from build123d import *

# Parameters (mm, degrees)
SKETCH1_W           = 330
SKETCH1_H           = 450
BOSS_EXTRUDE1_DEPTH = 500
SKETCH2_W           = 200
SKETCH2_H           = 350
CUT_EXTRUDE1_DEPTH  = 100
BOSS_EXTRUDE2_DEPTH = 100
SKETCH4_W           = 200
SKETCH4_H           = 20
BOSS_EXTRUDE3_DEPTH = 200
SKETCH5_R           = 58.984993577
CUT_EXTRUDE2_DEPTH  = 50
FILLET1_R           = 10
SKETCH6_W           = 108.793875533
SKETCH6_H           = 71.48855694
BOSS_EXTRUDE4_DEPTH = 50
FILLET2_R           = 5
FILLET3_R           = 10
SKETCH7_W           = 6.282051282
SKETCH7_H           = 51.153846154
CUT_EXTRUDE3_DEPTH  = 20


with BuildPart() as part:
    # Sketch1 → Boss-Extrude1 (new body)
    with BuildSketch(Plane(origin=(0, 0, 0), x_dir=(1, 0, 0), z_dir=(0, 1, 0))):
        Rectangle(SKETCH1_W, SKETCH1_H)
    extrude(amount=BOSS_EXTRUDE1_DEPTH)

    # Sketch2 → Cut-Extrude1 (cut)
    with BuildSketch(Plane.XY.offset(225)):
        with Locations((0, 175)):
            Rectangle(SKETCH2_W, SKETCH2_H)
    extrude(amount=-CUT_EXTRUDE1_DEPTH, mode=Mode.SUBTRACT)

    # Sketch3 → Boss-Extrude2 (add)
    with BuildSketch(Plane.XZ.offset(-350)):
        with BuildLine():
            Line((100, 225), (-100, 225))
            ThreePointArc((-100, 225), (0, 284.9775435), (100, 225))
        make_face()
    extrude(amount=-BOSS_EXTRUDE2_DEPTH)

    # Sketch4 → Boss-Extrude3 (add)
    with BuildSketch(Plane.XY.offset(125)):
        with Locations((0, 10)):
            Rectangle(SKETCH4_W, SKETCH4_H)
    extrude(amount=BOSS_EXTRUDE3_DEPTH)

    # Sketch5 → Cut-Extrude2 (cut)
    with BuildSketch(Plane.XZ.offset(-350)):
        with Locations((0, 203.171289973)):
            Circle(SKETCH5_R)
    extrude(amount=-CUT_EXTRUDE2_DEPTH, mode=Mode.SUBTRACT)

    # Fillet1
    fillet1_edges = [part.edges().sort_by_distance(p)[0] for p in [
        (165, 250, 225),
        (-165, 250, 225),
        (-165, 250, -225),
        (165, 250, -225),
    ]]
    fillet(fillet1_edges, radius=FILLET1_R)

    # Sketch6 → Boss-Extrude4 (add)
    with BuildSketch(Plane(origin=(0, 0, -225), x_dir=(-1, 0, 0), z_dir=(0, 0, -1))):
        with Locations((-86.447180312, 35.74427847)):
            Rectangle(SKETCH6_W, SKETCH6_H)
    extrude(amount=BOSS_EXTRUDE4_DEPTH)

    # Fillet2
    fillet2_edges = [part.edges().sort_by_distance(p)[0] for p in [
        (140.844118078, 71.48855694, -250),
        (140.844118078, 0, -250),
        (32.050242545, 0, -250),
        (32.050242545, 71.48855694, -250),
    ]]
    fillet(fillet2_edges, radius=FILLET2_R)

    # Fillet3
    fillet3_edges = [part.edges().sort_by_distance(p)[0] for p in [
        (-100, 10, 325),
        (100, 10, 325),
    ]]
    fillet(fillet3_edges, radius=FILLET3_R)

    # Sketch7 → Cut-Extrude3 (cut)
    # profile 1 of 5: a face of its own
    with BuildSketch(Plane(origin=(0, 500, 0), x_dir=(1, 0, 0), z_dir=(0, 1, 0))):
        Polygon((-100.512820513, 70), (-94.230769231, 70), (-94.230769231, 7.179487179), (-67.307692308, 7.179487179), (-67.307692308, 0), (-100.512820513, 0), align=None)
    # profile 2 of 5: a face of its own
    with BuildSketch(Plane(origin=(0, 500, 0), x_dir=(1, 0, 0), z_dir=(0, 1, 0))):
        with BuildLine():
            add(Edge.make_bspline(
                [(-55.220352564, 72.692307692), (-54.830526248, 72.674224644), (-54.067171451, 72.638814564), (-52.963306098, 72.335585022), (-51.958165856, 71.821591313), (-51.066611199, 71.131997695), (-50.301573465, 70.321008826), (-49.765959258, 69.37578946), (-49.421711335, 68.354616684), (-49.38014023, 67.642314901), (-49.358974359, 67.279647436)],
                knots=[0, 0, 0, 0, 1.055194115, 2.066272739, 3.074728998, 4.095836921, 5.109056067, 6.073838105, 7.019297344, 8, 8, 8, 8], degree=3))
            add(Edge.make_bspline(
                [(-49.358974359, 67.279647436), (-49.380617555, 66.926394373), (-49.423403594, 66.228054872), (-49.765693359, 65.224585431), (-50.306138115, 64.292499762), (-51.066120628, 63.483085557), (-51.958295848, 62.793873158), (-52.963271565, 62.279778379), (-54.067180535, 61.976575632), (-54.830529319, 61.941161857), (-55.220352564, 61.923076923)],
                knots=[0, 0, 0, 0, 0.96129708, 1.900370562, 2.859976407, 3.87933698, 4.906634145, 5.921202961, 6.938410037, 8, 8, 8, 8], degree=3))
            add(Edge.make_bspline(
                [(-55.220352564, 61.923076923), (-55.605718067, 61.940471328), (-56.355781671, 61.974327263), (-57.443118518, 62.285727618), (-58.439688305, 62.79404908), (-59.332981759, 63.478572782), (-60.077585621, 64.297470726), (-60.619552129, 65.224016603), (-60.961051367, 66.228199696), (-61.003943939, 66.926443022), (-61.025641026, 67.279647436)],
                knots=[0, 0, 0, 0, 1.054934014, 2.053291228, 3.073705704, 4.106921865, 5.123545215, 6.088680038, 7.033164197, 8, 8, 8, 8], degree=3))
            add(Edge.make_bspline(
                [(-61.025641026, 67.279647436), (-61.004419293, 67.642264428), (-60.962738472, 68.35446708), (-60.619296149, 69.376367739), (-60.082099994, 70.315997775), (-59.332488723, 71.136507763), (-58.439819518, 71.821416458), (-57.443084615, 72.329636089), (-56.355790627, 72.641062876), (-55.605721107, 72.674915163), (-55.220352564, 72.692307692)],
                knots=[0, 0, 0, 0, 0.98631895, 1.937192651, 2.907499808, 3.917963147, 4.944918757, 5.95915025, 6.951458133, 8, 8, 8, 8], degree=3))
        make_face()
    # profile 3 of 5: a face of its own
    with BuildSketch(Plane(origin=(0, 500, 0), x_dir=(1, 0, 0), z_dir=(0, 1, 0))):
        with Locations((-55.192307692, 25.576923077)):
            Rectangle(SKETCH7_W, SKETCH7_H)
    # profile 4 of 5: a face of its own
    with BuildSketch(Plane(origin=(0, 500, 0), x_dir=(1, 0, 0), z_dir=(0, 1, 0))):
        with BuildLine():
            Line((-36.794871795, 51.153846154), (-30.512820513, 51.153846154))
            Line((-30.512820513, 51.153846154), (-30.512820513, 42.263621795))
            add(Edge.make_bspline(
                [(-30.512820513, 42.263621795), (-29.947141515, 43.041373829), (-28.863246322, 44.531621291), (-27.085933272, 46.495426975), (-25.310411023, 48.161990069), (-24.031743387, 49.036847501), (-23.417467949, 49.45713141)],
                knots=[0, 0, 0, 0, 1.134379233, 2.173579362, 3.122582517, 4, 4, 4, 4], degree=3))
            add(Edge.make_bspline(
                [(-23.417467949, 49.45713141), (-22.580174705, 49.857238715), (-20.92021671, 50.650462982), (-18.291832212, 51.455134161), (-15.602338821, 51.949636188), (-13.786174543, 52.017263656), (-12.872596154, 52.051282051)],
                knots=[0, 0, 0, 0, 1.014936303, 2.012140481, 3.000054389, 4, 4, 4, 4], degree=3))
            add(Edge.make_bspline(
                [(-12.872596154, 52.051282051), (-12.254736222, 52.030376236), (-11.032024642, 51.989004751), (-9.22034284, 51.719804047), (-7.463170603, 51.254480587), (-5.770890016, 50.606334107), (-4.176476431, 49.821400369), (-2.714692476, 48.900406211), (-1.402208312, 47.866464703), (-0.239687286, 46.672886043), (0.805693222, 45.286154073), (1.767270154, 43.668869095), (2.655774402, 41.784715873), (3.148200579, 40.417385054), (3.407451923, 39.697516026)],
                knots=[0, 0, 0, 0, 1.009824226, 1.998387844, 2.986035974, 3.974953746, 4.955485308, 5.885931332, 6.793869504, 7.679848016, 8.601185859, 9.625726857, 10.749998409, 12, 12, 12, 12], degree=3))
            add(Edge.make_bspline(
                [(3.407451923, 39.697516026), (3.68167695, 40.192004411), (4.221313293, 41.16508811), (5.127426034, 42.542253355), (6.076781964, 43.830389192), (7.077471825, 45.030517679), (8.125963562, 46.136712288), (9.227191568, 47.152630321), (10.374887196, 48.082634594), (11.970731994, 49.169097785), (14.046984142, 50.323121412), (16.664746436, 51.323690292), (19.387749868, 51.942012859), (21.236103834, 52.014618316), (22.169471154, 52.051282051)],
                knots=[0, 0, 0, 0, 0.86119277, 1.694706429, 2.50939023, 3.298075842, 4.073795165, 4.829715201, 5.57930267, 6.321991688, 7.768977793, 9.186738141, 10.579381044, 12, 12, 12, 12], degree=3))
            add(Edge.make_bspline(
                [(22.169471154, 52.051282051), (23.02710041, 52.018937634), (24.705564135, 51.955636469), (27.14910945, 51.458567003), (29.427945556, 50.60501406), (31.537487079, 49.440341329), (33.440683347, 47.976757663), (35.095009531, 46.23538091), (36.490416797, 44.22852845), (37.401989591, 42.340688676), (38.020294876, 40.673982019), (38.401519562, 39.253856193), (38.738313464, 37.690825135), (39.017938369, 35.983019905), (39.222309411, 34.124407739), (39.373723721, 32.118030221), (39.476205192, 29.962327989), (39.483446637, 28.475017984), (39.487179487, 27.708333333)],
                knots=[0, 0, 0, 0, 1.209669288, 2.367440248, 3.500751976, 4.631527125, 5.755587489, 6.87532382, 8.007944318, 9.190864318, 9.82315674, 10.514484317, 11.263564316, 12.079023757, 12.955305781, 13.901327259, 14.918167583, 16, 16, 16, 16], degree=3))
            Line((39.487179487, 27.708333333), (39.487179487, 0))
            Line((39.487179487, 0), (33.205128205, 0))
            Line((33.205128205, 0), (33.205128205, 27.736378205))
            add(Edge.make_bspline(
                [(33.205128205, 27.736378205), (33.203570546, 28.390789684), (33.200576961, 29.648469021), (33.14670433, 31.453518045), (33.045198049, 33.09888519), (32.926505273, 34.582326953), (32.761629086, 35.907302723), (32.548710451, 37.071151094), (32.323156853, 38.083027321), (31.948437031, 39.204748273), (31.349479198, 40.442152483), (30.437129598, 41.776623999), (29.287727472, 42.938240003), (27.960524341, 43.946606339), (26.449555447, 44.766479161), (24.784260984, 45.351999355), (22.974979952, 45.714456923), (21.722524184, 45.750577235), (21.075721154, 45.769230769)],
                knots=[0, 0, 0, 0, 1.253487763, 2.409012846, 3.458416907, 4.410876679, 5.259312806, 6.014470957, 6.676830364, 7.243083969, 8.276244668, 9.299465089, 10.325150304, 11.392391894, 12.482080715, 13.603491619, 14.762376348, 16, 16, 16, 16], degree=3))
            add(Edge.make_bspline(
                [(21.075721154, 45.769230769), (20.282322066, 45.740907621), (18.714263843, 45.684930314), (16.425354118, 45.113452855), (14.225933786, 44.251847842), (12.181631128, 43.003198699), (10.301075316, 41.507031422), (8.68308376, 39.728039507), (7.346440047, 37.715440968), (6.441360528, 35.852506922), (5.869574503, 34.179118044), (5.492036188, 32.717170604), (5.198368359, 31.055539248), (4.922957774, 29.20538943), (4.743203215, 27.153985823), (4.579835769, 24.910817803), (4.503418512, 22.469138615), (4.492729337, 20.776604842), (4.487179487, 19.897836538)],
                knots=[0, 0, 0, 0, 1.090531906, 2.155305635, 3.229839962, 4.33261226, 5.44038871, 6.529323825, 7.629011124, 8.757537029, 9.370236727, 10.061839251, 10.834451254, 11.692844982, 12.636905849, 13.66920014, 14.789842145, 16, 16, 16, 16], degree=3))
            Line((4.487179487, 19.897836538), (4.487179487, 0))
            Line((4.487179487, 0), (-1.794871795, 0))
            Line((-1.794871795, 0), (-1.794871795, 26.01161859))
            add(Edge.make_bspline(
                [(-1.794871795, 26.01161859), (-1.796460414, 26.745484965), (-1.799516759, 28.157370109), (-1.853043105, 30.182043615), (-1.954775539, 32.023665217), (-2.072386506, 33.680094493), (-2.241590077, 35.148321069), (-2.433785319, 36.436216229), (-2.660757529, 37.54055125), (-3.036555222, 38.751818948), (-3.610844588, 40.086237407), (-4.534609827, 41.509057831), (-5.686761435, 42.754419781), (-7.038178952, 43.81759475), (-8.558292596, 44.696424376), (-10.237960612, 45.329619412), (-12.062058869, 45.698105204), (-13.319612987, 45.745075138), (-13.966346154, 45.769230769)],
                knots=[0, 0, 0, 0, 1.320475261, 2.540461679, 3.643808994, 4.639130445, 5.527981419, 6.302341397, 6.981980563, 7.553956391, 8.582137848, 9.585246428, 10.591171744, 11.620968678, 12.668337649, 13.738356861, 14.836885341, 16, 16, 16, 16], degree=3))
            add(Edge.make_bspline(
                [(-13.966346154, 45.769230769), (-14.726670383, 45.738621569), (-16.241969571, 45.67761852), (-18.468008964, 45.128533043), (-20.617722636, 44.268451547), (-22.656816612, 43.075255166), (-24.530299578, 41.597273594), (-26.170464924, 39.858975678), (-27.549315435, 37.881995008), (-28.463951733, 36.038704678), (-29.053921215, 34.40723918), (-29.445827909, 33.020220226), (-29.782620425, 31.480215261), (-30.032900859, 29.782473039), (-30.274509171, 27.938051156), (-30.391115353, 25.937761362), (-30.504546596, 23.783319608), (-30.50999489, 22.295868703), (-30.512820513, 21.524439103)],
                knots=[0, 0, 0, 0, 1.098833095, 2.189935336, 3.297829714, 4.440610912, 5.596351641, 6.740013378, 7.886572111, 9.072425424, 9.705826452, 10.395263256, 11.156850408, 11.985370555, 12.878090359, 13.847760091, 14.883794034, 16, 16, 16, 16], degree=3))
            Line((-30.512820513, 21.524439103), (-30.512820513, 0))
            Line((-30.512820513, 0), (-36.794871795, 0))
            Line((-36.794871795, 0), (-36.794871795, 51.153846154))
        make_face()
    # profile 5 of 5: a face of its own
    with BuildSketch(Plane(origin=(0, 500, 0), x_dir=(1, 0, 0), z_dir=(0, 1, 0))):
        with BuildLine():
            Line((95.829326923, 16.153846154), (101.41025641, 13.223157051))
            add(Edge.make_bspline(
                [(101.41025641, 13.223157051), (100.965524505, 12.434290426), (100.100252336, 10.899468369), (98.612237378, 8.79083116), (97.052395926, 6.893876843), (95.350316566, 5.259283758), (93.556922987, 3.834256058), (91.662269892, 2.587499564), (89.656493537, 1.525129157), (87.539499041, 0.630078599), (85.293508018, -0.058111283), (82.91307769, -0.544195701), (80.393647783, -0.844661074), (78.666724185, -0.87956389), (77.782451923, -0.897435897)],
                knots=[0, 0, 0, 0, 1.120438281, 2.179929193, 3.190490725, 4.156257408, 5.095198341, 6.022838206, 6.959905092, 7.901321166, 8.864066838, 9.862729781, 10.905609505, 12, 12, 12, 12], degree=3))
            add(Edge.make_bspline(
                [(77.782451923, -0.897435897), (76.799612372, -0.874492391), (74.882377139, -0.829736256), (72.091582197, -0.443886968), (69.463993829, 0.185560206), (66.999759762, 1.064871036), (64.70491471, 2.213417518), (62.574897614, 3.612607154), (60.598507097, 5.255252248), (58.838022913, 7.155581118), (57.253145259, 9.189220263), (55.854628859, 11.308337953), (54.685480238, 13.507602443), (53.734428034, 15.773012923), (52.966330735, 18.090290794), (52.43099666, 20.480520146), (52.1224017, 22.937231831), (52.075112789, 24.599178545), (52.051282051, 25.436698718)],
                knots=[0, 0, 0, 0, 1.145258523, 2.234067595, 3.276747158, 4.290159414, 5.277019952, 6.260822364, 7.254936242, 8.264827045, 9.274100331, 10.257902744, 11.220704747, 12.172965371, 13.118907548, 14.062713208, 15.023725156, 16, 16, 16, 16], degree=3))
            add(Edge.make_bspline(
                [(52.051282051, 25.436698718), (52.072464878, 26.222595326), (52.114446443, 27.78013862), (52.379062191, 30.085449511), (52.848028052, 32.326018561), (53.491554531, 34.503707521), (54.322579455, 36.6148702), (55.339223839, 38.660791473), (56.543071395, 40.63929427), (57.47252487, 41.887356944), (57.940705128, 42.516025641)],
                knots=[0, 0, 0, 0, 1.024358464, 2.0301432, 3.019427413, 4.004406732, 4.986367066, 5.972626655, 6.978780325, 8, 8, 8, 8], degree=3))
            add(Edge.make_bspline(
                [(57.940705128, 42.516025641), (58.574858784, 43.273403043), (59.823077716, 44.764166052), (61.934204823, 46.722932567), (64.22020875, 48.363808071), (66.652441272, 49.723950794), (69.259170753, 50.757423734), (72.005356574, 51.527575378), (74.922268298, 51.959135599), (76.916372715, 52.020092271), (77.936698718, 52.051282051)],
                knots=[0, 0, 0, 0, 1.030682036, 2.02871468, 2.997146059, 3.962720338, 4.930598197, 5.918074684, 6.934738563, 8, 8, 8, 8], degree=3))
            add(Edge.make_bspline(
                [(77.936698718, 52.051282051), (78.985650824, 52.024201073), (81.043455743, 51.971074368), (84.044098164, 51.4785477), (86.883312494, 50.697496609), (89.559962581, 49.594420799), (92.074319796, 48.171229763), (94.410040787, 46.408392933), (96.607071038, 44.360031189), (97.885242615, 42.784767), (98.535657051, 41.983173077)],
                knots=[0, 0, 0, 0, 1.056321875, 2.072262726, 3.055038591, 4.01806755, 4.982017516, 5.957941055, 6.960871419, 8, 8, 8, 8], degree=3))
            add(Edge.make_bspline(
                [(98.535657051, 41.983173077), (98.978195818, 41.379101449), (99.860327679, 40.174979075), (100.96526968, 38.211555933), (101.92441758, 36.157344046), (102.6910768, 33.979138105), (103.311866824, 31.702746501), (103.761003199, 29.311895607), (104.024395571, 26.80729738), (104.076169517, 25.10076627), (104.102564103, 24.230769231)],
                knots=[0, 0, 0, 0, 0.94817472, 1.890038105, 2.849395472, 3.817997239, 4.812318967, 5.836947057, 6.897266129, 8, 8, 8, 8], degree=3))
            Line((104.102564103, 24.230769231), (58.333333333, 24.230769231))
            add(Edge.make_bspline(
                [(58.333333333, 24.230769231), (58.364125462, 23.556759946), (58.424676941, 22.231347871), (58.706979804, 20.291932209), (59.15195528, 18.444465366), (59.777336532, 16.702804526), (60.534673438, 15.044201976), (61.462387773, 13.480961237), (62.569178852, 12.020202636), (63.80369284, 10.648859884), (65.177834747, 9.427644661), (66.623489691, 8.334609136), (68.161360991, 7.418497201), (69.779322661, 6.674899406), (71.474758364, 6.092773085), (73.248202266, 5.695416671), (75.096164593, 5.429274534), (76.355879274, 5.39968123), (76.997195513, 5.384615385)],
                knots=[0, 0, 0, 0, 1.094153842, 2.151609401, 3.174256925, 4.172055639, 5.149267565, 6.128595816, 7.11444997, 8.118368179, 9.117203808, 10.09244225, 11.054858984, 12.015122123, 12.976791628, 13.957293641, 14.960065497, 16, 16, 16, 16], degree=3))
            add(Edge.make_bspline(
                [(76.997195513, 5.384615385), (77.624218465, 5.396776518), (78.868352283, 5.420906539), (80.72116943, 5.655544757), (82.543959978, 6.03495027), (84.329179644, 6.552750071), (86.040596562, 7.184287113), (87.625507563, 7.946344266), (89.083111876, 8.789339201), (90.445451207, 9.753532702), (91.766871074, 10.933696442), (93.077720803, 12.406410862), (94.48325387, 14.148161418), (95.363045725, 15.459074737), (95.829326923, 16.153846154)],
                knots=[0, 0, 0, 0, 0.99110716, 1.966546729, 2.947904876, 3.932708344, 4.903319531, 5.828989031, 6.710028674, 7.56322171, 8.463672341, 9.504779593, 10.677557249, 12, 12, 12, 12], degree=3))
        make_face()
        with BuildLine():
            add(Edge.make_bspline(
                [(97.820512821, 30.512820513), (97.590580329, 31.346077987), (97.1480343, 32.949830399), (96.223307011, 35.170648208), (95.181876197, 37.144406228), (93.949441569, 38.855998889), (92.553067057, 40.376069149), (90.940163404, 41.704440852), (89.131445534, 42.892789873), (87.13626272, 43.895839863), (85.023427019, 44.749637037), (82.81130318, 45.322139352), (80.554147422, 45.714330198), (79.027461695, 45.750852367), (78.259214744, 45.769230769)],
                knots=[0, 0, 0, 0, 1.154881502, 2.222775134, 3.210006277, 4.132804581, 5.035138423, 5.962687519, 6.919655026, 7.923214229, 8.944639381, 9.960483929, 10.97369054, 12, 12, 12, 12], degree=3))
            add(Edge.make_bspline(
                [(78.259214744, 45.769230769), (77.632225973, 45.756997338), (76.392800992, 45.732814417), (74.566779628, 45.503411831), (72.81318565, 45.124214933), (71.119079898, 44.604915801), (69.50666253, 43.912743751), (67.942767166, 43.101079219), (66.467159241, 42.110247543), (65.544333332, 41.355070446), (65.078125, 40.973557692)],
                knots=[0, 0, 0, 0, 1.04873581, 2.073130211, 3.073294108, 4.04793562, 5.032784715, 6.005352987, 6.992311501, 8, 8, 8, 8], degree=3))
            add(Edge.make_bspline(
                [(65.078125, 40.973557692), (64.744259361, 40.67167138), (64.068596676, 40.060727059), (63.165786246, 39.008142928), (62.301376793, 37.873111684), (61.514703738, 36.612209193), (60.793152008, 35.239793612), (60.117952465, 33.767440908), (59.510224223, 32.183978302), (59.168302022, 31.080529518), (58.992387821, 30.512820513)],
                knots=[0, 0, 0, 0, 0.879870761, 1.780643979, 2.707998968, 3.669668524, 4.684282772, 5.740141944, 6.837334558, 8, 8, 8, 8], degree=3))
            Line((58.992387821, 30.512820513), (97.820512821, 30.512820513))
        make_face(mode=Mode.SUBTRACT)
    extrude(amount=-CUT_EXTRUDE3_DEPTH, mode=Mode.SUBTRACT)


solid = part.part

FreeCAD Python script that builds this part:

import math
import FreeCAD as App
import Part
import Sketcher
Q = App.Units.Quantity


def edges_at(feature, points):
    """Names of the edges that pass closest to the given points."""
    edges = feature.Shape.Edges
    near = lambda p: min(range(len(edges)), key=lambda i: edges[i].distToShape(Part.Vertex(*p))[0])
    return sorted({f"Edge{near(p) + 1}" for p in points})

doc = App.newDocument("Part")
body = doc.addObject("PartDesign::Body", "Body")

# Sketch on XZ plane
sketch1 = body.newObject("Sketcher::SketchObject", "Sketch")
sketch1.AttachmentSupport = (doc.getObject("XZ_Plane"), [""])
sketch1.MapMode = "FlatFace"
sketch1.addGeometry(Part.LineSegment(App.Vector(-165, -225, 0), App.Vector(-165, 225, 0)), False)
sketch1.addGeometry(Part.LineSegment(App.Vector(-165, 225, 0), App.Vector(165, 225, 0)), False)
sketch1.addGeometry(Part.LineSegment(App.Vector(165, 225, 0), App.Vector(165, -225, 0)), False)
sketch1.addGeometry(Part.LineSegment(App.Vector(165, -225, 0), App.Vector(-165, -225, 0)), False)
sketch1.addConstraint(Sketcher.Constraint("Coincident", 0, 2, 1, 1))
sketch1.addConstraint(Sketcher.Constraint("Coincident", 1, 2, 2, 1))
sketch1.addConstraint(Sketcher.Constraint("Coincident", 2, 2, 3, 1))
sketch1.addConstraint(Sketcher.Constraint("Coincident", 3, 2, 0, 1))
sketch1.addConstraint(Sketcher.Constraint("Vertical", 0))
sketch1.addConstraint(Sketcher.Constraint("Horizontal", 1))
sketch1.addConstraint(Sketcher.Constraint("Vertical", 2))
sketch1.addConstraint(Sketcher.Constraint("Horizontal", 3))
sketch1.addConstraint(Sketcher.Constraint("Symmetric", 0, 2, 2, 2, -1, 1))
sketch1.addConstraint(Sketcher.Constraint("DistanceX", 1, 1, 1, 2, Q("330 mm")))
sketch1.addConstraint(Sketcher.Constraint("DistanceY", 0, 1, 0, 2, Q("450 mm")))
pad1 = body.newObject("PartDesign::Pad", "Pad")
pad1.Profile = sketch1
pad1.Length = 500
pad1.Reversed = True

# Sketch on XY plane
sketch2 = body.newObject("Sketcher::SketchObject", "Sketch001")
sketch2.AttachmentSupport = (doc.getObject("XY_Plane"), [""])
sketch2.MapMode = "FlatFace"
sketch2.AttachmentOffset = App.Placement(App.Vector(0, 0, 225), App.Rotation())
sketch2.addGeometry(Part.LineSegment(App.Vector(-100, 350, 0), App.Vector(-100, 0, 0)), False)
sketch2.addGeometry(Part.LineSegment(App.Vector(-100, 0, 0), App.Vector(100, 0, 0)), False)
sketch2.addGeometry(Part.LineSegment(App.Vector(100, 0, 0), App.Vector(100, 350, 0)), False)
sketch2.addGeometry(Part.LineSegment(App.Vector(100, 350, 0), App.Vector(-100, 350, 0)), False)
sketch2.addConstraint(Sketcher.Constraint("Coincident", 0, 2, 1, 1))
sketch2.addConstraint(Sketcher.Constraint("Coincident", 1, 2, 2, 1))
sketch2.addConstraint(Sketcher.Constraint("Coincident", 2, 2, 3, 1))
sketch2.addConstraint(Sketcher.Constraint("Coincident", 3, 2, 0, 1))
sketch2.addConstraint(Sketcher.Constraint("Vertical", 0))
sketch2.addConstraint(Sketcher.Constraint("Horizontal", 1))
sketch2.addConstraint(Sketcher.Constraint("Vertical", 2))
sketch2.addConstraint(Sketcher.Constraint("Horizontal", 3))
sketch2.addConstraint(Sketcher.Constraint("Symmetric", 0, 2, 1, 2, -1, 1))
sketch2.addConstraint(Sketcher.Constraint("DistanceX", 1, 1, 1, 2, Q("200 mm")))
sketch2.addConstraint(Sketcher.Constraint("DistanceY", 0, 2, 0, 1, Q("350 mm")))
pocket1 = body.newObject("PartDesign::Pocket", "Pocket")
pocket1.Profile = sketch2
pocket1.Length = 100

# Sketch on XZ plane
sketch3 = body.newObject("Sketcher::SketchObject", "Sketch002")
sketch3.AttachmentSupport = (doc.getObject("XZ_Plane"), [""])
sketch3.MapMode = "FlatFace"
sketch3.AttachmentOffset = App.Placement(App.Vector(0, 0, -350), App.Rotation())
sketch3.addGeometry(Part.LineSegment(App.Vector(-100, 225, 0), App.Vector(100, 225, 0)), False)
sketch3.addGeometry(Part.ArcOfCircle(Part.Circle(App.Vector(0, 172, 0), App.Vector(0, 0, 1), 113), math.radians(28), math.radians(152)), False)
sketch3.addConstraint(Sketcher.Constraint("Coincident", 0, 1, 1, 2))
sketch3.addConstraint(Sketcher.Constraint("Coincident", 1, 1, 0, 2))
sketch3.addConstraint(Sketcher.Constraint("Horizontal", 0))
sketch3.addConstraint(Sketcher.Constraint("PointOnObject", 1, 3, -2))
sketch3.addConstraint(Sketcher.Constraint("DistanceX", 0, 1, 0, 2, Q("200 mm")))
sketch3.addConstraint(Sketcher.Constraint("DistanceY", -1, 1, 0, 1, Q("225 mm")))
sketch3.addConstraint(Sketcher.Constraint("Radius", 1, Q("113.353306 mm")))
pad2 = body.newObject("PartDesign::Pad", "Pad001")
pad2.Profile = sketch3
pad2.Length = 100
pad2.Reversed = True

# Sketch on XY plane
sketch4 = body.newObject("Sketcher::SketchObject", "Sketch003")
sketch4.AttachmentSupport = (doc.getObject("XY_Plane"), [""])
sketch4.MapMode = "FlatFace"
sketch4.AttachmentOffset = App.Placement(App.Vector(0, 0, 125), App.Rotation())
sketch4.addGeometry(Part.LineSegment(App.Vector(-100, 20, 0), App.Vector(-100, 0, 0)), False)
sketch4.addGeometry(Part.LineSegment(App.Vector(-100, 0, 0), App.Vector(100, 0, 0)), False)
sketch4.addGeometry(Part.LineSegment(App.Vector(100, 0, 0), App.Vector(100, 20, 0)), False)
sketch4.addGeometry(Part.LineSegment(App.Vector(100, 20, 0), App.Vector(-100, 20, 0)), False)
sketch4.addConstraint(Sketcher.Constraint("Coincident", 0, 2, 1, 1))
sketch4.addConstraint(Sketcher.Constraint("Coincident", 1, 2, 2, 1))
sketch4.addConstraint(Sketcher.Constraint("Coincident", 2, 2, 3, 1))
sketch4.addConstraint(Sketcher.Constraint("Coincident", 3, 2, 0, 1))
sketch4.addConstraint(Sketcher.Constraint("Vertical", 0))
sketch4.addConstraint(Sketcher.Constraint("Horizontal", 1))
sketch4.addConstraint(Sketcher.Constraint("Vertical", 2))
sketch4.addConstraint(Sketcher.Constraint("Horizontal", 3))
sketch4.addConstraint(Sketcher.Constraint("Symmetric", 0, 2, 1, 2, -1, 1))
sketch4.addConstraint(Sketcher.Constraint("DistanceX", 1, 1, 1, 2, Q("200 mm")))
sketch4.addConstraint(Sketcher.Constraint("DistanceY", 0, 2, 0, 1, Q("20 mm")))
pad3 = body.newObject("PartDesign::Pad", "Pad002")
pad3.Profile = sketch4
pad3.Length = 200

# Sketch on XZ plane
sketch5 = body.newObject("Sketcher::SketchObject", "Sketch004")
sketch5.AttachmentSupport = (doc.getObject("XZ_Plane"), [""])
sketch5.MapMode = "FlatFace"
sketch5.AttachmentOffset = App.Placement(App.Vector(0, 0, -350), App.Rotation())
sketch5.addGeometry(Part.Circle(App.Vector(0, 203, 0), App.Vector(0, 0, 1), 59), False)
sketch5.addConstraint(Sketcher.Constraint("PointOnObject", 0, 3, -2))
sketch5.addConstraint(Sketcher.Constraint("Diameter", 0, Q("117.969987 mm")))
sketch5.addConstraint(Sketcher.Constraint("DistanceY", -1, 1, 0, 3, Q("203.17129 mm")))
pocket2 = body.newObject("PartDesign::Pocket", "Pocket001")
pocket2.Profile = sketch5
pocket2.Length = 50
doc.recompute()

fillet = body.newObject("PartDesign::Fillet", "Fillet")
fillet.Base = (pocket2, edges_at(pocket2, [
    (165, 250, 225),
    (-165, 250, 225),
    (-165, 250, -225),
    (165, 250, -225),
]))
fillet.Radius = 10

# Sketch on XY plane
sketch6 = body.newObject("Sketcher::SketchObject", "Sketch005")
sketch6.AttachmentSupport = (doc.getObject("XY_Plane"), [""])
sketch6.MapMode = "FlatFace"
sketch6.AttachmentOffset = App.Placement(App.Vector(0, 0, -225), App.Rotation())
sketch6.addGeometry(Part.LineSegment(App.Vector(141, 71, 0), App.Vector(141, 0, 0)), False)
sketch6.addGeometry(Part.LineSegment(App.Vector(141, 0, 0), App.Vector(32, 0, 0)), False)
sketch6.addGeometry(Part.LineSegment(App.Vector(32, 0, 0), App.Vector(32, 71, 0)), False)
sketch6.addGeometry(Part.LineSegment(App.Vector(32, 71, 0), App.Vector(141, 71, 0)), False)
sketch6.addConstraint(Sketcher.Constraint("Coincident", 0, 2, 1, 1))
sketch6.addConstraint(Sketcher.Constraint("Coincident", 1, 2, 2, 1))
sketch6.addConstraint(Sketcher.Constraint("Coincident", 2, 2, 3, 1))
sketch6.addConstraint(Sketcher.Constraint("Coincident", 3, 2, 0, 1))
sketch6.addConstraint(Sketcher.Constraint("Vertical", 0))
sketch6.addConstraint(Sketcher.Constraint("Horizontal", 1))
sketch6.addConstraint(Sketcher.Constraint("Vertical", 2))
sketch6.addConstraint(Sketcher.Constraint("Horizontal", 3))
sketch6.addConstraint(Sketcher.Constraint("PointOnObject", 0, 2, -1))
sketch6.addConstraint(Sketcher.Constraint("DistanceX", 1, 2, 1, 1, Q("108.793876 mm")))
sketch6.addConstraint(Sketcher.Constraint("DistanceY", 0, 2, 0, 1, Q("71.488557 mm")))
sketch6.addConstraint(Sketcher.Constraint("DistanceX", -1, 1, 0, 2, Q("140.844118 mm")))
pad4 = body.newObject("PartDesign::Pad", "Pad003")
pad4.Profile = sketch6
pad4.Length = 50
pad4.Reversed = True
doc.recompute()

fillet2 = body.newObject("PartDesign::Fillet", "Fillet001")
fillet2.Base = (pad4, edges_at(pad4, [
    (140.844, 71.489, -250),
    (140.844, 0, -250),
    (32.05, 0, -250),
    (32.05, 71.489, -250),
]))
fillet2.Radius = 5
doc.recompute()

fillet3 = body.newObject("PartDesign::Fillet", "Fillet002")
fillet3.Base = (fillet2, edges_at(fillet2, [(-100, 10, 325), (100, 10, 325)]))
fillet3.Radius = 10

# Sketch on XZ plane
sketch7 = body.newObject("Sketcher::SketchObject", "Sketch006")
sketch7.AttachmentSupport = (doc.getObject("XZ_Plane"), [""])
sketch7.MapMode = "FlatFace"
sketch7.AttachmentOffset = App.Placement(App.Vector(0, 0, -500), App.Rotation())
sketch7.addGeometry(Part.LineSegment(App.Vector(-94.230769, -70, 0), App.Vector(-100.512821, -70, 0)), False)
sketch7.addGeometry(Part.LineSegment(App.Vector(-100.512821, -70, 0), App.Vector(-100.512821, 0, 0)), False)
sketch7.addGeometry(Part.LineSegment(App.Vector(-100.512821, 0, 0), App.Vector(-67.307692, 0, 0)), False)
sketch7.addGeometry(Part.LineSegment(App.Vector(-67.307692, 0, 0), App.Vector(-67.307692, -7.179487, 0)), False)
sketch7.addGeometry(Part.LineSegment(App.Vector(-67.307692, -7.179487, 0), App.Vector(-94.230769, -7.179487, 0)), False)
sketch7.addGeometry(Part.LineSegment(App.Vector(-94.230769, -7.179487, 0), App.Vector(-94.230769, -70, 0)), False)
sketch7.addGeometry(Part.BSplineCurve([App.Vector(-55.220353, -72.692308, 0), App.Vector(-54.830526, -72.674225, 0), App.Vector(-54.067171, -72.638815, 0), App.Vector(-52.963306, -72.335585, 0), App.Vector(-51.958166, -71.821591, 0), App.Vector(-51.066611, -71.131998, 0), App.Vector(-50.301573, -70.321009, 0), App.Vector(-49.765959, -69.375789, 0), App.Vector(-49.421711, -68.354617, 0), App.Vector(-49.38014, -67.642315, 0), App.Vector(-49.358974, -67.279647, 0)], [4, 1, 1, 1, 1, 1, 1, 1, 4], [0, 1.055194115, 2.066272739, 3.074728998, 4.095836921, 5.109056067, 6.073838105, 7.019297344, 8], False, 3, [1, 1, 1, 1, 1, 1, 1, 1, 1, 1, 1], False), False)
sketch7.addGeometry(Part.BSplineCurve([App.Vector(-61.025641, -67.279647, 0), App.Vector(-61.004419, -67.642264, 0), App.Vector(-60.962738, -68.354467, 0), App.Vector(-60.619296, -69.376368, 0), App.Vector(-60.0821, -70.315998, 0), App.Vector(-59.332489, -71.136508, 0), App.Vector(-58.43982, -71.821416, 0), App.Vector(-57.443085, -72.329636, 0), App.Vector(-56.355791, -72.641063, 0), App.Vector(-55.605721, -72.674915, 0), App.Vector(-55.220353, -72.692308, 0)], [4, 1, 1, 1, 1, 1, 1, 1, 4], [0, 0.98631895, 1.937192651, 2.907499808, 3.917963147, 4.944918757, 5.95915025, 6.951458133, 8], False, 3, [1, 1, 1, 1, 1, 1, 1, 1, 1, 1, 1], False), False)
sketch7.addGeometry(Part.BSplineCurve([App.Vector(-55.220353, -61.923077, 0), App.Vector(-55.605718, -61.940471, 0), App.Vector(-56.355782, -61.974327, 0), App.Vector(-57.443119, -62.285728, 0), App.Vector(-58.439688, -62.794049, 0), App.Vector(-59.332982, -63.478573, 0), App.Vector(-60.077586, -64.297471, 0), App.Vector(-60.619552, -65.224017, 0), App.Vector(-60.961051, -66.2282, 0), App.Vector(-61.003944, -66.926443, 0), App.Vector(-61.025641, -67.279647, 0)], [4, 1, 1, 1, 1, 1, 1, 1, 4], [0, 1.054934014, 2.053291228, 3.073705704, 4.106921865, 5.123545215, 6.088680038, 7.033164197, 8], False, 3, [1, 1, 1, 1, 1, 1, 1, 1, 1, 1, 1], False), False)
sketch7.addGeometry(Part.BSplineCurve([App.Vector(-49.358974, -67.279647, 0), App.Vector(-49.380618, -66.926394, 0), App.Vector(-49.423404, -66.228055, 0), App.Vector(-49.765693, -65.224585, 0), App.Vector(-50.306138, -64.2925, 0), App.Vector(-51.066121, -63.483086, 0), App.Vector(-51.958296, -62.793873, 0), App.Vector(-52.963272, -62.279778, 0), App.Vector(-54.067181, -61.976576, 0), App.Vector(-54.830529, -61.941162, 0), App.Vector(-55.220353, -61.923077, 0)], [4, 1, 1, 1, 1, 1, 1, 1, 4], [0, 0.96129708, 1.900370562, 2.859976407, 3.87933698, 4.906634145, 5.921202961, 6.938410037, 8], False, 3, [1, 1, 1, 1, 1, 1, 1, 1, 1, 1, 1], False), False)
sketch7.addGeometry(Part.LineSegment(App.Vector(-58.333333, -51.153846, 0), App.Vector(-58.333333, 0, 0)), False)
sketch7.addGeometry(Part.LineSegment(App.Vector(-58.333333, 0, 0), App.Vector(-52.051282, 0, 0)), False)
sketch7.addGeometry(Part.LineSegment(App.Vector(-52.051282, 0, 0), App.Vector(-52.051282, -51.153846, 0)), False)
sketch7.addGeometry(Part.LineSegment(App.Vector(-52.051282, -51.153846, 0), App.Vector(-58.333333, -51.153846, 0)), False)
sketch7.addGeometry(Part.LineSegment(App.Vector(-30.512821, -51.153846, 0), App.Vector(-36.794872, -51.153846, 0)), False)
sketch7.addGeometry(Part.LineSegment(App.Vector(-36.794872, -51.153846, 0), App.Vector(-36.794872, 0, 0)), False)
sketch7.addGeometry(Part.LineSegment(App.Vector(-36.794872, 0, 0), App.Vector(-30.512821, 0, 0)), False)
sketch7.addGeometry(Part.LineSegment(App.Vector(-30.512821, 0, 0), App.Vector(-30.512821, -21.524439, 0)), False)
sketch7.addGeometry(Part.BSplineCurve([App.Vector(-13.966346, -45.769231, 0), App.Vector(-14.72667, -45.738622, 0), App.Vector(-16.24197, -45.677619, 0), App.Vector(-18.468009, -45.128533, 0), App.Vector(-20.617723, -44.268452, 0), App.Vector(-22.656817, -43.075255, 0), App.Vector(-24.5303, -41.597274, 0), App.Vector(-26.170465, -39.858976, 0), App.Vector(-27.549315, -37.881995, 0), App.Vector(-28.463952, -36.038705, 0), App.Vector(-29.053921, -34.407239, 0), App.Vector(-29.445828, -33.02022, 0), App.Vector(-29.78262, -31.480215, 0), App.Vector(-30.032901, -29.782473, 0), App.Vector(-30.274509, -27.938051, 0), App.Vector(-30.391115, -25.937761, 0), App.Vector(-30.504547, -23.78332, 0), App.Vector(-30.509995, -22.295869, 0), App.Vector(-30.512821, -21.524439, 0)], [4, 1, 1, 1, 1, 1, 1, 1, 1, 1, 1, 1, 1, 1, 1, 1, 4], [0, 1.098833095, 2.189935336, 3.297829714, 4.440610912, 5.596351641, 6.740013378, 7.886572111, 9.072425424, 9.705826452, 10.395263256, 11.156850408, 11.985370555, 12.878090359, 13.847760091, 14.883794034, 16], False, 3, [1, 1, 1, 1, 1, 1, 1, 1, 1, 1, 1, 1, 1, 1, 1, 1, 1, 1, 1], False), False)
sketch7.addGeometry(Part.BSplineCurve([App.Vector(-1.794872, -26.011619, 0), App.Vector(-1.79646, -26.745485, 0), App.Vector(-1.799517, -28.15737, 0), App.Vector(-1.853043, -30.182044, 0), App.Vector(-1.954776, -32.023665, 0), App.Vector(-2.072387, -33.680094, 0), App.Vector(-2.24159, -35.148321, 0), App.Vector(-2.433785, -36.436216, 0), App.Vector(-2.660758, -37.540551, 0), App.Vector(-3.036555, -38.751819, 0), App.Vector(-3.610845, -40.086237, 0), App.Vector(-4.53461, -41.509058, 0), App.Vector(-5.686761, -42.75442, 0), App.Vector(-7.038179, -43.817595, 0), App.Vector(-8.558293, -44.696424, 0), App.Vector(-10.237961, -45.329619, 0), App.Vector(-12.062059, -45.698105, 0), App.Vector(-13.319613, -45.745075, 0), App.Vector(-13.966346, -45.769231, 0)], [4, 1, 1, 1, 1, 1, 1, 1, 1, 1, 1, 1, 1, 1, 1, 1, 4], [0, 1.320475261, 2.540461679, 3.643808994, 4.639130445, 5.527981419, 6.302341397, 6.981980563, 7.553956391, 8.582137848, 9.585246428, 10.591171744, 11.620968678, 12.668337649, 13.738356861, 14.836885341, 16], False, 3, [1, 1, 1, 1, 1, 1, 1, 1, 1, 1, 1, 1, 1, 1, 1, 1, 1, 1, 1], False), False)
sketch7.addGeometry(Part.LineSegment(App.Vector(-1.794872, -26.011619, 0), App.Vector(-1.794872, 0, 0)), False)
sketch7.addGeometry(Part.LineSegment(App.Vector(-1.794872, 0, 0), App.Vector(4.487179, 0, 0)), False)
sketch7.addGeometry(Part.LineSegment(App.Vector(4.487179, 0, 0), App.Vector(4.487179, -19.897837, 0)), False)
sketch7.addGeometry(Part.BSplineCurve([App.Vector(21.075721, -45.769231, 0), App.Vector(20.282322, -45.740908, 0), App.Vector(18.714264, -45.68493, 0), App.Vector(16.425354, -45.113453, 0), App.Vector(14.225934, -44.251848, 0), App.Vector(12.181631, -43.003199, 0), App.Vector(10.301075, -41.507031, 0), App.Vector(8.683084, -39.72804, 0), App.Vector(7.34644, -37.715441, 0), App.Vector(6.441361, -35.852507, 0), App.Vector(5.869575, -34.179118, 0), App.Vector(5.492036, -32.717171, 0), App.Vector(5.198368, -31.055539, 0), App.Vector(4.922958, -29.205389, 0), App.Vector(4.743203, -27.153986, 0), App.Vector(4.579836, -24.910818, 0), App.Vector(4.503419, -22.469139, 0), App.Vector(4.492729, -20.776605, 0), App.Vector(4.487179, -19.897837, 0)], [4, 1, 1, 1, 1, 1, 1, 1, 1, 1, 1, 1, 1, 1, 1, 1, 4], [0, 1.090531906, 2.155305635, 3.229839962, 4.33261226, 5.44038871, 6.529323825, 7.629011124, 8.757537029, 9.370236727, 10.061839251, 10.834451254, 11.692844982, 12.636905849, 13.66920014, 14.789842145, 16], False, 3, [1, 1, 1, 1, 1, 1, 1, 1, 1, 1, 1, 1, 1, 1, 1, 1, 1, 1, 1], False), False)
sketch7.addGeometry(Part.BSplineCurve([App.Vector(33.205128, -27.736378, 0), App.Vector(33.203571, -28.39079, 0), App.Vector(33.200577, -29.648469, 0), App.Vector(33.146704, -31.453518, 0), App.Vector(33.045198, -33.098885, 0), App.Vector(32.926505, -34.582327, 0), App.Vector(32.761629, -35.907303, 0), App.Vector(32.54871, -37.071151, 0), App.Vector(32.323157, -38.083027, 0), App.Vector(31.948437, -39.204748, 0), App.Vector(31.349479, -40.442152, 0), App.Vector(30.43713, -41.776624, 0), App.Vector(29.287727, -42.93824, 0), App.Vector(27.960524, -43.946606, 0), App.Vector(26.449555, -44.766479, 0), App.Vector(24.784261, -45.351999, 0), App.Vector(22.97498, -45.714457, 0), App.Vector(21.722524, -45.750577, 0), App.Vector(21.075721, -45.769231, 0)], [4, 1, 1, 1, 1, 1, 1, 1, 1, 1, 1, 1, 1, 1, 1, 1, 4], [0, 1.253487763, 2.409012846, 3.458416907, 4.410876679, 5.259312806, 6.014470957, 6.676830364, 7.243083969, 8.276244668, 9.299465089, 10.325150304, 11.392391894, 12.482080715, 13.603491619, 14.762376348, 16], False, 3, [1, 1, 1, 1, 1, 1, 1, 1, 1, 1, 1, 1, 1, 1, 1, 1, 1, 1, 1], False), False)
sketch7.addGeometry(Part.LineSegment(App.Vector(33.205128, -27.736378, 0), App.Vector(33.205128, 0, 0)), False)
sketch7.addGeometry(Part.LineSegment(App.Vector(33.205128, 0, 0), App.Vector(39.487179, 0, 0)), False)
sketch7.addGeometry(Part.LineSegment(App.Vector(39.487179, 0, 0), App.Vector(39.487179, -27.708333, 0)), False)
sketch7.addGeometry(Part.BSplineCurve([App.Vector(22.169471, -52.051282, 0), App.Vector(23.0271, -52.018938, 0), App.Vector(24.705564, -51.955636, 0), App.Vector(27.149109, -51.458567, 0), App.Vector(29.427946, -50.605014, 0), App.Vector(31.537487, -49.440341, 0), App.Vector(33.440683, -47.976758, 0), App.Vector(35.09501, -46.235381, 0), App.Vector(36.490417, -44.228528, 0), App.Vector(37.40199, -42.340689, 0), App.Vector(38.020295, -40.673982, 0), App.Vector(38.40152, -39.253856, 0), App.Vector(38.738313, -37.690825, 0), App.Vector(39.017938, -35.98302, 0), App.Vector(39.222309, -34.124408, 0), App.Vector(39.373724, -32.11803, 0), App.Vector(39.476205, -29.962328, 0), App.Vector(39.483447, -28.475018, 0), App.Vector(39.487179, -27.708333, 0)], [4, 1, 1, 1, 1, 1, 1, 1, 1, 1, 1, 1, 1, 1, 1, 1, 4], [0, 1.209669288, 2.367440248, 3.500751976, 4.631527125, 5.755587489, 6.87532382, 8.007944318, 9.190864318, 9.82315674, 10.514484317, 11.263564316, 12.079023757, 12.955305781, 13.901327259, 14.918167583, 16], False, 3, [1, 1, 1, 1, 1, 1, 1, 1, 1, 1, 1, 1, 1, 1, 1, 1, 1, 1, 1], False), False)
sketch7.addGeometry(Part.BSplineCurve([App.Vector(3.407452, -39.697516, 0), App.Vector(3.681677, -40.192004, 0), App.Vector(4.221313, -41.165088, 0), App.Vector(5.127426, -42.542253, 0), App.Vector(6.076782, -43.830389, 0), App.Vector(7.077472, -45.030518, 0), App.Vector(8.125964, -46.136712, 0), App.Vector(9.227192, -47.15263, 0), App.Vector(10.374887, -48.082635, 0), App.Vector(11.970732, -49.169098, 0), App.Vector(14.046984, -50.323121, 0), App.Vector(16.664746, -51.32369, 0), App.Vector(19.38775, -51.942013, 0), App.Vector(21.236104, -52.014618, 0), App.Vector(22.169471, -52.051282, 0)], [4, 1, 1, 1, 1, 1, 1, 1, 1, 1, 1, 1, 4], [0, 0.86119277, 1.694706429, 2.50939023, 3.298075842, 4.073795165, 4.829715201, 5.57930267, 6.321991688, 7.768977793, 9.186738141, 10.579381044, 12], False, 3, [1, 1, 1, 1, 1, 1, 1, 1, 1, 1, 1, 1, 1, 1, 1], False), False)
sketch7.addGeometry(Part.BSplineCurve([App.Vector(-12.872596, -52.051282, 0), App.Vector(-12.254736, -52.030376, 0), App.Vector(-11.032025, -51.989005, 0), App.Vector(-9.220343, -51.719804, 0), App.Vector(-7.463171, -51.254481, 0), App.Vector(-5.77089, -50.606334, 0), App.Vector(-4.176476, -49.8214, 0), App.Vector(-2.714692, -48.900406, 0), App.Vector(-1.402208, -47.866465, 0), App.Vector(-0.239687, -46.672886, 0), App.Vector(0.805693, -45.286154, 0), App.Vector(1.76727, -43.668869, 0), App.Vector(2.655774, -41.784716, 0), App.Vector(3.148201, -40.417385, 0), App.Vector(3.407452, -39.697516, 0)], [4, 1, 1, 1, 1, 1, 1, 1, 1, 1, 1, 1, 4], [0, 1.009824226, 1.998387844, 2.986035974, 3.974953746, 4.955485308, 5.885931332, 6.793869504, 7.679848016, 8.601185859, 9.625726857, 10.749998409, 12], False, 3, [1, 1, 1, 1, 1, 1, 1, 1, 1, 1, 1, 1, 1, 1, 1], False), False)
sketch7.addGeometry(Part.BSplineCurve([App.Vector(-23.417468, -49.457131, 0), App.Vector(-22.580175, -49.857239, 0), App.Vector(-20.920217, -50.650463, 0), App.Vector(-18.291832, -51.455134, 0), App.Vector(-15.602339, -51.949636, 0), App.Vector(-13.786175, -52.017264, 0), App.Vector(-12.872596, -52.051282, 0)], [4, 1, 1, 1, 4], [0, 1.014936303, 2.012140481, 3.000054389, 4], False, 3, [1, 1, 1, 1, 1, 1, 1], False), False)
sketch7.addGeometry(Part.BSplineCurve([App.Vector(-30.512821, -42.263622, 0), App.Vector(-29.947142, -43.041374, 0), App.Vector(-28.863246, -44.531621, 0), App.Vector(-27.085933, -46.495427, 0), App.Vector(-25.310411, -48.16199, 0), App.Vector(-24.031743, -49.036848, 0), App.Vector(-23.417468, -49.457131, 0)], [4, 1, 1, 1, 4], [0, 1.134379233, 2.173579362, 3.122582517, 4], False, 3, [1, 1, 1, 1, 1, 1, 1], False), False)
sketch7.addGeometry(Part.LineSegment(App.Vector(-30.512821, -42.263622, 0), App.Vector(-30.512821, -51.153846, 0)), False)
sketch7.addGeometry(Part.LineSegment(App.Vector(101.410256, -13.223157, 0), App.Vector(95.829327, -16.153846, 0)), False)
sketch7.addGeometry(Part.BSplineCurve([App.Vector(76.997196, -5.384615, 0), App.Vector(77.624218, -5.396777, 0), App.Vector(78.868352, -5.420907, 0), App.Vector(80.721169, -5.655545, 0), App.Vector(82.54396, -6.03495, 0), App.Vector(84.32918, -6.55275, 0), App.Vector(86.040597, -7.184287, 0), App.Vector(87.625508, -7.946344, 0), App.Vector(89.083112, -8.789339, 0), App.Vector(90.445451, -9.753533, 0), App.Vector(91.766871, -10.933696, 0), App.Vector(93.077721, -12.406411, 0), App.Vector(94.483254, -14.148161, 0), App.Vector(95.363046, -15.459075, 0), App.Vector(95.829327, -16.153846, 0)], [4, 1, 1, 1, 1, 1, 1, 1, 1, 1, 1, 1, 4], [0, 0.99110716, 1.966546729, 2.947904876, 3.932708344, 4.903319531, 5.828989031, 6.710028674, 7.56322171, 8.463672341, 9.504779593, 10.677557249, 12], False, 3, [1, 1, 1, 1, 1, 1, 1, 1, 1, 1, 1, 1, 1, 1, 1], False), False)
sketch7.addGeometry(Part.BSplineCurve([App.Vector(58.333333, -24.230769, 0), App.Vector(58.364125, -23.55676, 0), App.Vector(58.424677, -22.231348, 0), App.Vector(58.70698, -20.291932, 0), App.Vector(59.151955, -18.444465, 0), App.Vector(59.777337, -16.702805, 0), App.Vector(60.534673, -15.044202, 0), App.Vector(61.462388, -13.480961, 0), App.Vector(62.569179, -12.020203, 0), App.Vector(63.803693, -10.64886, 0), App.Vector(65.177835, -9.427645, 0), App.Vector(66.62349, -8.334609, 0), App.Vector(68.161361, -7.418497, 0), App.Vector(69.779323, -6.674899, 0), App.Vector(71.474758, -6.092773, 0), App.Vector(73.248202, -5.695417, 0), App.Vector(75.096165, -5.429275, 0), App.Vector(76.355879, -5.399681, 0), App.Vector(76.997196, -5.384615, 0)], [4, 1, 1, 1, 1, 1, 1, 1, 1, 1, 1, 1, 1, 1, 1, 1, 4], [0, 1.094153842, 2.151609401, 3.174256925, 4.172055639, 5.149267565, 6.128595816, 7.11444997, 8.118368179, 9.117203808, 10.09244225, 11.054858984, 12.015122123, 12.976791628, 13.957293641, 14.960065497, 16], False, 3, [1, 1, 1, 1, 1, 1, 1, 1, 1, 1, 1, 1, 1, 1, 1, 1, 1, 1, 1], False), False)
sketch7.addGeometry(Part.LineSegment(App.Vector(58.333333, -24.230769, 0), App.Vector(104.102564, -24.230769, 0)), False)
sketch7.addGeometry(Part.BSplineCurve([App.Vector(98.535657, -41.983173, 0), App.Vector(98.978196, -41.379101, 0), App.Vector(99.860328, -40.174979, 0), App.Vector(100.96527, -38.211556, 0), App.Vector(101.924418, -36.157344, 0), App.Vector(102.691077, -33.979138, 0), App.Vector(103.311867, -31.702747, 0), App.Vector(103.761003, -29.311896, 0), App.Vector(104.024396, -26.807297, 0), App.Vector(104.07617, -25.100766, 0), App.Vector(104.102564, -24.230769, 0)], [4, 1, 1, 1, 1, 1, 1, 1, 4], [0, 0.94817472, 1.890038105, 2.849395472, 3.817997239, 4.812318967, 5.836947057, 6.897266129, 8], False, 3, [1, 1, 1, 1, 1, 1, 1, 1, 1, 1, 1], False), False)
sketch7.addGeometry(Part.BSplineCurve([App.Vector(77.936699, -52.051282, 0), App.Vector(78.985651, -52.024201, 0), App.Vector(81.043456, -51.971074, 0), App.Vector(84.044098, -51.478548, 0), App.Vector(86.883312, -50.697497, 0), App.Vector(89.559963, -49.594421, 0), App.Vector(92.07432, -48.17123, 0), App.Vector(94.410041, -46.408393, 0), App.Vector(96.607071, -44.360031, 0), App.Vector(97.885243, -42.784767, 0), App.Vector(98.535657, -41.983173, 0)], [4, 1, 1, 1, 1, 1, 1, 1, 4], [0, 1.056321875, 2.072262726, 3.055038591, 4.01806755, 4.982017516, 5.957941055, 6.960871419, 8], False, 3, [1, 1, 1, 1, 1, 1, 1, 1, 1, 1, 1], False), False)
sketch7.addGeometry(Part.BSplineCurve([App.Vector(57.940705, -42.516026, 0), App.Vector(58.574859, -43.273403, 0), App.Vector(59.823078, -44.764166, 0), App.Vector(61.934205, -46.722933, 0), App.Vector(64.220209, -48.363808, 0), App.Vector(66.652441, -49.723951, 0), App.Vector(69.259171, -50.757424, 0), App.Vector(72.005357, -51.527575, 0), App.Vector(74.922268, -51.959136, 0), App.Vector(76.916373, -52.020092, 0), App.Vector(77.936699, -52.051282, 0)], [4, 1, 1, 1, 1, 1, 1, 1, 4], [0, 1.030682036, 2.02871468, 2.997146059, 3.962720338, 4.930598197, 5.918074684, 6.934738563, 8], False, 3, [1, 1, 1, 1, 1, 1, 1, 1, 1, 1, 1], False), False)
sketch7.addGeometry(Part.BSplineCurve([App.Vector(52.051282, -25.436699, 0), App.Vector(52.072465, -26.222595, 0), App.Vector(52.114446, -27.780139, 0), App.Vector(52.379062, -30.08545, 0), App.Vector(52.848028, -32.326019, 0), App.Vector(53.491555, -34.503708, 0), App.Vector(54.322579, -36.61487, 0), App.Vector(55.339224, -38.660791, 0), App.Vector(56.543071, -40.639294, 0), App.Vector(57.472525, -41.887357, 0), App.Vector(57.940705, -42.516026, 0)], [4, 1, 1, 1, 1, 1, 1, 1, 4], [0, 1.024358464, 2.0301432, 3.019427413, 4.004406732, 4.986367066, 5.972626655, 6.978780325, 8], False, 3, [1, 1, 1, 1, 1, 1, 1, 1, 1, 1, 1], False), False)
sketch7.addGeometry(Part.BSplineCurve([App.Vector(77.782452, 0.897436, 0), App.Vector(76.799612, 0.874492, 0), App.Vector(74.882377, 0.829736, 0), App.Vector(72.091582, 0.443887, 0), App.Vector(69.463994, -0.18556, 0), App.Vector(66.99976, -1.064871, 0), App.Vector(64.704915, -2.213418, 0), App.Vector(62.574898, -3.612607, 0), App.Vector(60.598507, -5.255252, 0), App.Vector(58.838023, -7.155581, 0), App.Vector(57.253145, -9.18922, 0), App.Vector(55.854629, -11.308338, 0), App.Vector(54.68548, -13.507602, 0), App.Vector(53.734428, -15.773013, 0), App.Vector(52.966331, -18.090291, 0), App.Vector(52.430997, -20.48052, 0), App.Vector(52.122402, -22.937232, 0), App.Vector(52.075113, -24.599179, 0), App.Vector(52.051282, -25.436699, 0)], [4, 1, 1, 1, 1, 1, 1, 1, 1, 1, 1, 1, 1, 1, 1, 1, 4], [0, 1.145258523, 2.234067595, 3.276747158, 4.290159414, 5.277019952, 6.260822364, 7.254936242, 8.264827045, 9.274100331, 10.257902744, 11.220704747, 12.172965371, 13.118907548, 14.062713208, 15.023725156, 16], False, 3, [1, 1, 1, 1, 1, 1, 1, 1, 1, 1, 1, 1, 1, 1, 1, 1, 1, 1, 1], False), False)
sketch7.addGeometry(Part.BSplineCurve([App.Vector(101.410256, -13.223157, 0), App.Vector(100.965525, -12.43429, 0), App.Vector(100.100252, -10.899468, 0), App.Vector(98.612237, -8.790831, 0), App.Vector(97.052396, -6.893877, 0), App.Vector(95.350317, -5.259284, 0), App.Vector(93.556923, -3.834256, 0), App.Vector(91.66227, -2.5875, 0), App.Vector(89.656494, -1.525129, 0), App.Vector(87.539499, -0.630079, 0), App.Vector(85.293508, 0.058111, 0), App.Vector(82.913078, 0.544196, 0), App.Vector(80.393648, 0.844661, 0), App.Vector(78.666724, 0.879564, 0), App.Vector(77.782452, 0.897436, 0)], [4, 1, 1, 1, 1, 1, 1, 1, 1, 1, 1, 1, 4], [0, 1.120438281, 2.179929193, 3.190490725, 4.156257408, 5.095198341, 6.022838206, 6.959905092, 7.901321166, 8.864066838, 9.862729781, 10.905609505, 12], False, 3, [1, 1, 1, 1, 1, 1, 1, 1, 1, 1, 1, 1, 1, 1, 1], False), False)
sketch7.addGeometry(Part.LineSegment(App.Vector(97.820513, -30.512821, 0), App.Vector(58.992388, -30.512821, 0)), False)
sketch7.addGeometry(Part.BSplineCurve([App.Vector(65.078125, -40.973558, 0), App.Vector(64.744259, -40.671671, 0), App.Vector(64.068597, -40.060727, 0), App.Vector(63.165786, -39.008143, 0), App.Vector(62.301377, -37.873112, 0), App.Vector(61.514704, -36.612209, 0), App.Vector(60.793152, -35.239794, 0), App.Vector(60.117952, -33.767441, 0), App.Vector(59.510224, -32.183978, 0), App.Vector(59.168302, -31.08053, 0), App.Vector(58.992388, -30.512821, 0)], [4, 1, 1, 1, 1, 1, 1, 1, 4], [0, 0.879870761, 1.780643979, 2.707998968, 3.669668524, 4.684282772, 5.740141944, 6.837334558, 8], False, 3, [1, 1, 1, 1, 1, 1, 1, 1, 1, 1, 1], False), False)
sketch7.addGeometry(Part.BSplineCurve([App.Vector(78.259215, -45.769231, 0), App.Vector(77.632226, -45.756997, 0), App.Vector(76.392801, -45.732814, 0), App.Vector(74.56678, -45.503412, 0), App.Vector(72.813186, -45.124215, 0), App.Vector(71.11908, -44.604916, 0), App.Vector(69.506663, -43.912744, 0), App.Vector(67.942767, -43.101079, 0), App.Vector(66.467159, -42.110248, 0), App.Vector(65.544333, -41.35507, 0), App.Vector(65.078125, -40.973558, 0)], [4, 1, 1, 1, 1, 1, 1, 1, 4], [0, 1.04873581, 2.073130211, 3.073294108, 4.04793562, 5.032784715, 6.005352987, 6.992311501, 8], False, 3, [1, 1, 1, 1, 1, 1, 1, 1, 1, 1, 1], False), False)
sketch7.addGeometry(Part.BSplineCurve([App.Vector(97.820513, -30.512821, 0), App.Vector(97.59058, -31.346078, 0), App.Vector(97.148034, -32.94983, 0), App.Vector(96.223307, -35.170648, 0), App.Vector(95.181876, -37.144406, 0), App.Vector(93.949442, -38.855999, 0), App.Vector(92.553067, -40.376069, 0), App.Vector(90.940163, -41.704441, 0), App.Vector(89.131446, -42.89279, 0), App.Vector(87.136263, -43.89584, 0), App.Vector(85.023427, -44.749637, 0), App.Vector(82.811303, -45.322139, 0), App.Vector(80.554147, -45.71433, 0), App.Vector(79.027462, -45.750852, 0), App.Vector(78.259215, -45.769231, 0)], [4, 1, 1, 1, 1, 1, 1, 1, 1, 1, 1, 1, 4], [0, 1.154881502, 2.222775134, 3.210006277, 4.132804581, 5.035138423, 5.962687519, 6.919655026, 7.923214229, 8.944639381, 9.960483929, 10.97369054, 12], False, 3, [1, 1, 1, 1, 1, 1, 1, 1, 1, 1, 1, 1, 1, 1, 1], False), False)
sketch7.addConstraint(Sketcher.Constraint("Block", 6))
sketch7.addConstraint(Sketcher.Constraint("Block", 7))
sketch7.addConstraint(Sketcher.Constraint("Block", 8))
sketch7.addConstraint(Sketcher.Constraint("Block", 9))
sketch7.addConstraint(Sketcher.Constraint("Block", 18))
sketch7.addConstraint(Sketcher.Constraint("Block", 19))
sketch7.addConstraint(Sketcher.Constraint("Block", 23))
sketch7.addConstraint(Sketcher.Constraint("Block", 24))
sketch7.addConstraint(Sketcher.Constraint("Block", 28))
sketch7.addConstraint(Sketcher.Constraint("Block", 29))
sketch7.addConstraint(Sketcher.Constraint("Block", 30))
sketch7.addConstraint(Sketcher.Constraint("Block", 31))
sketch7.addConstraint(Sketcher.Constraint("Block", 32))
sketch7.addConstraint(Sketcher.Constraint("Block", 35))
sketch7.addConstraint(Sketcher.Constraint("Block", 36))
sketch7.addConstraint(Sketcher.Constraint("Block", 38))
sketch7.addConstraint(Sketcher.Constraint("Block", 39))
sketch7.addConstraint(Sketcher.Constraint("Block", 40))
sketch7.addConstraint(Sketcher.Constraint("Block", 41))
sketch7.addConstraint(Sketcher.Constraint("Block", 42))
sketch7.addConstraint(Sketcher.Constraint("Block", 43))
sketch7.addConstraint(Sketcher.Constraint("Block", 45))
sketch7.addConstraint(Sketcher.Constraint("Block", 46))
sketch7.addConstraint(Sketcher.Constraint("Block", 47))
sketch7.addConstraint(Sketcher.Constraint("Coincident", 0, 2, 1, 1))
sketch7.addConstraint(Sketcher.Constraint("Coincident", 1, 2, 2, 1))
sketch7.addConstraint(Sketcher.Constraint("Coincident", 2, 2, 3, 1))
sketch7.addConstraint(Sketcher.Constraint("Coincident", 3, 2, 4, 1))
sketch7.addConstraint(Sketcher.Constraint("Coincident", 4, 2, 5, 1))
sketch7.addConstraint(Sketcher.Constraint("Coincident", 5, 2, 0, 1))
sketch7.addConstraint(Sketcher.Constraint("Coincident", 10, 2, 11, 1))
sketch7.addConstraint(Sketcher.Constraint("Coincident", 11, 2, 12, 1))
sketch7.addConstraint(Sketcher.Constraint("Coincident", 12, 2, 13, 1))
sketch7.addConstraint(Sketcher.Constraint("Coincident", 13, 2, 10, 1))
sketch7.addConstraint(Sketcher.Constraint("Coincident", 14, 2, 15, 1))
sketch7.addConstraint(Sketcher.Constraint("Coincident", 15, 2, 16, 1))
sketch7.addConstraint(Sketcher.Constraint("Coincident", 16, 2, 17, 1))
sketch7.addConstraint(Sketcher.Constraint("Coincident", 17, 2, 18, 2))
sketch7.addConstraint(Sketcher.Constraint("Coincident", 19, 1, 20, 1))
sketch7.addConstraint(Sketcher.Constraint("Coincident", 20, 2, 21, 1))
sketch7.addConstraint(Sketcher.Constraint("Coincident", 21, 2, 22, 1))
sketch7.addConstraint(Sketcher.Constraint("Coincident", 22, 2, 23, 2))
sketch7.addConstraint(Sketcher.Constraint("Coincident", 24, 1, 25, 1))
sketch7.addConstraint(Sketcher.Constraint("Coincident", 25, 2, 26, 1))
sketch7.addConstraint(Sketcher.Constraint("Coincident", 26, 2, 27, 1))
sketch7.addConstraint(Sketcher.Constraint("Coincident", 27, 2, 28, 2))
sketch7.addConstraint(Sketcher.Constraint("Coincident", 32, 1, 33, 1))
sketch7.addConstraint(Sketcher.Constraint("Coincident", 33, 2, 14, 1))
sketch7.addConstraint(Sketcher.Constraint("Coincident", 34, 2, 35, 2))
sketch7.addConstraint(Sketcher.Constraint("Coincident", 36, 1, 37, 1))
sketch7.addConstraint(Sketcher.Constraint("Coincident", 37, 2, 38, 2))
sketch7.addConstraint(Sketcher.Constraint("Coincident", 43, 1, 34, 1))
sketch7.addConstraint(Sketcher.Constraint("Coincident", 44, 2, 45, 2))
sketch7.addConstraint(Sketcher.Constraint("Coincident", 47, 1, 44, 1))
sketch7.addConstraint(Sketcher.Constraint("Horizontal", 0))
sketch7.addConstraint(Sketcher.Constraint("Vertical", 1))
sketch7.addConstraint(Sketcher.Constraint("Horizontal", 2))
sketch7.addConstraint(Sketcher.Constraint("Vertical", 3))
sketch7.addConstraint(Sketcher.Constraint("Horizontal", 4))
sketch7.addConstraint(Sketcher.Constraint("Vertical", 5))
sketch7.addConstraint(Sketcher.Constraint("Vertical", 10))
sketch7.addConstraint(Sketcher.Constraint("Horizontal", 11))
sketch7.addConstraint(Sketcher.Constraint("Vertical", 12))
sketch7.addConstraint(Sketcher.Constraint("Horizontal", 13))
sketch7.addConstraint(Sketcher.Constraint("Horizontal", 14))
sketch7.addConstraint(Sketcher.Constraint("Vertical", 15))
sketch7.addConstraint(Sketcher.Constraint("Horizontal", 16))
sketch7.addConstraint(Sketcher.Constraint("Vertical", 17))
sketch7.addConstraint(Sketcher.Constraint("Vertical", 20))
sketch7.addConstraint(Sketcher.Constraint("Horizontal", 21))
sketch7.addConstraint(Sketcher.Constraint("Vertical", 22))
sketch7.addConstraint(Sketcher.Constraint("Vertical", 25))
sketch7.addConstraint(Sketcher.Constraint("Horizontal", 26))
sketch7.addConstraint(Sketcher.Constraint("Vertical", 27))
sketch7.addConstraint(Sketcher.Constraint("Vertical", 33))
sketch7.addConstraint(Sketcher.Constraint("PointOnObject", 1, 2, -1))
sketch7.addConstraint(Sketcher.Constraint("PointOnObject", 10, 2, -1))
sketch7.addConstraint(Sketcher.Constraint("PointOnObject", 15, 2, -1))
sketch7.addConstraint(Sketcher.Constraint("PointOnObject", 20, 2, -1))
sketch7.addConstraint(Sketcher.Constraint("PointOnObject", 25, 2, -1))
sketch7.addConstraint(Sketcher.Constraint("Horizontal", 13, 2, 14, 2))
sketch7.addConstraint(Sketcher.Constraint("Equal", 0, 11))
sketch7.addConstraint(Sketcher.Constraint("Equal", 13, 14))
sketch7.addConstraint(Sketcher.Constraint("Equal", 16, 21))
sketch7.addConstraint(Sketcher.Constraint("DistanceY", 1, 1, 1, 2, Q("70 mm")))
sketch7.addConstraint(Sketcher.Constraint("DistanceX", 2, 1, 2, 2, Q("33.205128 mm")))
sketch7.addConstraint(Sketcher.Constraint("DistanceY", 3, 2, 3, 1, Q("7.179487 mm")))
sketch7.addConstraint(Sketcher.Constraint("DistanceY", 10, 1, 10, 2, Q("51.153846 mm")))
sketch7.addConstraint(Sketcher.Constraint("DistanceX", 0, 2, -1, 1, Q("100.512821 mm")))
sketch7.addConstraint(Sketcher.Constraint("DistanceX", 2, 2, 10, 2, Q("8.974359 mm")))
pocket3 = body.newObject("PartDesign::Pocket", "Pocket002")
pocket3.Profile = sketch7
pocket3.Length = 20
pocket3.Reversed = True

doc.recompute()
